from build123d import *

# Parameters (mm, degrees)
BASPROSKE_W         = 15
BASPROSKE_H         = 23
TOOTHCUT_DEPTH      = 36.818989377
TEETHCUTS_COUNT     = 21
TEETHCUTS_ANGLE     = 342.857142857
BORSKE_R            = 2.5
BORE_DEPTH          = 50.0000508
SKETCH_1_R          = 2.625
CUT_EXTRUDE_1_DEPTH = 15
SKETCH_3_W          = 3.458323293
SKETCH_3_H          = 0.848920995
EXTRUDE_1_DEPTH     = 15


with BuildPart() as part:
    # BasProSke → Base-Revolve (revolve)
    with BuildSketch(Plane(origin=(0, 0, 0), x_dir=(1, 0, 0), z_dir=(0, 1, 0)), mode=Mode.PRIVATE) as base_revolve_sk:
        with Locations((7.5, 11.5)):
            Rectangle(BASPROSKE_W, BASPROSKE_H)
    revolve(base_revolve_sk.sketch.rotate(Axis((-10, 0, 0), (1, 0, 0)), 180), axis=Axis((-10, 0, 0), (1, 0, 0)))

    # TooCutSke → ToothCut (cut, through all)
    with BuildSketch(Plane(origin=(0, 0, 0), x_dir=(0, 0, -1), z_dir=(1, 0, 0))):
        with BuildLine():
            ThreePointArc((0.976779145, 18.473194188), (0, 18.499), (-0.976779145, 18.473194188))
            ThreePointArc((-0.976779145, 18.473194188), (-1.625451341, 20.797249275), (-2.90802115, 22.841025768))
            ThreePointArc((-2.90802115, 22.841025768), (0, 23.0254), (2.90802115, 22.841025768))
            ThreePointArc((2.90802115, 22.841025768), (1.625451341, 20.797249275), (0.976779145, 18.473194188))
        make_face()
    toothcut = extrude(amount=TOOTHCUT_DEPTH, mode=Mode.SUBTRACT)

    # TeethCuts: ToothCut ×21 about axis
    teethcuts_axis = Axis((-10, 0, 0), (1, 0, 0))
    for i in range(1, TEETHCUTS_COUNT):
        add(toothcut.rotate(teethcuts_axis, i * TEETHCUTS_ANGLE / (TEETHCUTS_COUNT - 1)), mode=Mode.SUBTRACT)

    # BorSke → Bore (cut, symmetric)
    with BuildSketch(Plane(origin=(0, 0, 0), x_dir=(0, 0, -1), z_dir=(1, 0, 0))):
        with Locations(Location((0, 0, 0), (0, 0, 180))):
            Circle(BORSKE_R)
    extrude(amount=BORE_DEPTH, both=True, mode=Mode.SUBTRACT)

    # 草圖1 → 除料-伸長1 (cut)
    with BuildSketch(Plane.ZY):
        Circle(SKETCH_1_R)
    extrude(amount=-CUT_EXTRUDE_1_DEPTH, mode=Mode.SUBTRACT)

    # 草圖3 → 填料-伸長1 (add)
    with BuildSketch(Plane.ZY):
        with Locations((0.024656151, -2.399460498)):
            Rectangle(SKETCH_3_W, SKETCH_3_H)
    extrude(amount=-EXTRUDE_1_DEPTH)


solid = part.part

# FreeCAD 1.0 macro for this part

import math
import FreeCAD as App
import Part
import Sketcher

V = App.Vector
Q = App.Units.Quantity

doc = App.newDocument("Part")
body = doc.addObject("PartDesign::Body", "Body")

# Sketch on XZ plane
sketch1 = doc.addObject("Sketcher::SketchObject", "Sketch")
body.addObject(sketch1)
sketch1.AttachmentSupport = (doc.XZ_Plane, [""])
sketch1.MapMode = "FlatFace"
sketch1.addGeometry(Part.LineSegment(V(0, -23, 0), V(0, 0, 0)), False)
sketch1.addGeometry(Part.LineSegment(V(0, 0, 0), V(15, 0, 0)), False)
sketch1.addGeometry(Part.LineSegment(V(15, 0, 0), V(15, -23, 0)), False)
sketch1.addGeometry(Part.LineSegment(V(15, -23, 0), V(0, -23, 0)), False)
sketch1.addConstraint(Sketcher.Constraint("Coincident", 0, 2, 1, 1))
sketch1.addConstraint(Sketcher.Constraint("Coincident", 1, 2, 2, 1))
sketch1.addConstraint(Sketcher.Constraint("Coincident", 2, 2, 3, 1))
sketch1.addConstraint(Sketcher.Constraint("Coincident", 3, 2, 0, 1))
sketch1.addConstraint(Sketcher.Constraint("Vertical", 0))
sketch1.addConstraint(Sketcher.Constraint("Horizontal", 1))
sketch1.addConstraint(Sketcher.Constraint("Vertical", 2))
sketch1.addConstraint(Sketcher.Constraint("Horizontal", 3))
sketch1.addConstraint(Sketcher.Constraint("Coincident", 0, 2, -1, 1))
sketch1.addConstraint(Sketcher.Constraint("DistanceX", 1, 1, 1, 2, Q("15 mm")))
sketch1.addConstraint(Sketcher.Constraint("DistanceY", 0, 1, 0, 2, Q("23 mm")))
revolution = doc.addObject("PartDesign::Revolution", "Revolution")
body.addObject(revolution)
revolution.Profile = sketch1
revolution.ReferenceAxis = (sketch1, ["H_Axis"])
revolution.Angle = 360

# Sketch on YZ plane
sketch2 = doc.addObject("Sketcher::SketchObject", "Sketch001")
body.addObject(sketch2)
sketch2.AttachmentSupport = (doc.YZ_Plane, [""])
sketch2.MapMode = "FlatFace"
sketch2.addGeometry(Part.ArcOfCircle(Part.Circle(V(0, 0, 0), V(0, 0, 1), 18.5), math.radians(-3.03), math.radians(3.03)), False)
sketch2.addGeometry(Part.ArcOfCircle(Part.Circle(V(17.4, -9.3, 0), V(0, 0, 1), 8.4), math.radians(50), math.radians(83)), False)
sketch2.addGeometry(Part.ArcOfCircle(Part.Circle(V(0, 0, 0), V(0, 0, 1), 23), math.radians(-7.26), math.radians(7.26)), False)
sketch2.addGeometry(Part.ArcOfCircle(Part.Circle(V(17.4, 9.3, 0), V(0, 0, 1), 8.4), math.radians(-83), math.radians(-50)), False)
sketch2.addConstraint(Sketcher.Constraint("Coincident", 0, 1, 1, 2))
sketch2.addConstraint(Sketcher.Constraint("Coincident", 1, 1, 2, 1))
sketch2.addConstraint(Sketcher.Constraint("Coincident", 2, 2, 3, 2))
sketch2.addConstraint(Sketcher.Constraint("Coincident", 3, 1, 0, 2))
sketch2.addConstraint(Sketcher.Constraint("Coincident", 0, 3, -1, 1))
sketch2.addConstraint(Sketcher.Constraint("Coincident", 2, 3, -1, 1))
sketch2.addConstraint(Sketcher.Constraint("Equal", 1, 3))
sketch2.addConstraint(Sketcher.Constraint("Symmetric", 1, 3, 3, 3, -1))
sketch2.addConstraint(Sketcher.Constraint("Radius", 1, Q("8.4 mm")))
sketch2.addConstraint(Sketcher.Constraint("Radius", 0, Q("18.499 mm")))
sketch2.addConstraint(Sketcher.Constraint("Radius", 2, Q("23.0254 mm")))
sketch2.addConstraint(Sketcher.Constraint("DistanceY", 0, 1, 2, 2, Q("3.8848 mm")))
sketch2.addConstraint(Sketcher.Constraint("DistanceY", 0, 1, -1, 1, Q("0.976779 mm")))
pocket1 = doc.addObject("PartDesign::Pocket", "Pocket")
body.addObject(pocket1)
pocket1.Profile = sketch2
pocket1.Type = "ThroughAll"
pocket1.Reversed = True
doc.recompute()

polarpattern = doc.addObject("PartDesign::PolarPattern", "PolarPattern")
body.addObject(polarpattern)
polarpattern.Originals = [pocket1]
polarpattern.Axis = (doc.X_Axis, [""])
polarpattern.Angle = 360
polarpattern.Occurrences = 21
body.Tip = polarpattern

# Sketch on YZ plane
sketch3 = doc.addObject("Sketcher::SketchObject", "Sketch002")
body.addObject(sketch3)
sketch3.AttachmentSupport = (doc.YZ_Plane, [""])
sketch3.MapMode = "FlatFace"
sketch3.addGeometry(Part.Circle(V(0, 0, 0), V(0, 0, 1), 2.5), False)
sketch3.addConstraint(Sketcher.Constraint("Coincident", 0, 3, -1, 1))
sketch3.addConstraint(Sketcher.Constraint("Diameter", 0, Q("5 mm")))
pocket2 = doc.addObject("PartDesign::Pocket", "Pocket001")
body.addObject(pocket2)
pocket2.Profile = sketch3
pocket2.Length = 100.000102
pocket2.Midplane = True

# Sketch on YZ plane
sketch4 = doc.addObject("Sketcher::SketchObject", "Sketch003")
body.addObject(sketch4)
sketch4.AttachmentSupport = (doc.YZ_Plane, [""])
sketch4.MapMode = "FlatFace"
sketch4.addGeometry(Part.Circle(V(0, 0, 0), V(0, 0, 1), 2.6), False)
sketch4.addConstraint(Sketcher.Constraint("Coincident", 0, 3, -1, 1))
sketch4.addConstraint(Sketcher.Constraint("Diameter", 0, Q("5.25 mm")))
pocket3 = doc.addObject("PartDesign::Pocket", "Pocket002")
body.addObject(pocket3)
pocket3.Profile = sketch4
pocket3.Length = 15
pocket3.Reversed = True

# Sketch on YZ plane
sketch5 = doc.addObject("Sketcher::SketchObject", "Sketch004")
body.addObject(sketch5)
sketch5.AttachmentSupport = (doc.YZ_Plane, [""])
sketch5.MapMode = "FlatFace"
sketch5.addGeometry(Part.LineSegment(V(-2, -1.7, 0), V(-2.8, -1.7, 0)), False)
sketch5.addGeometry(Part.LineSegment(V(-2.8, -1.7, 0), V(-2.8, 1.8, 0)), False)
sketch5.addGeometry(Part.LineSegment(V(-2.8, 1.8, 0), V(-2, 1.8, 0)), False)
sketch5.addGeometry(Part.LineSegment(V(-2, 1.8, 0), V(-2, -1.7, 0)), False)
sketch5.addConstraint(Sketcher.Constraint("Coincident", 0, 2, 1, 1))
sketch5.addConstraint(Sketcher.Constraint("Coincident", 1, 2, 2, 1))
sketch5.addConstraint(Sketcher.Constraint("Coincident", 2, 2, 3, 1))
sketch5.addConstraint(Sketcher.Constraint("Coincident", 3, 2, 0, 1))
sketch5.addConstraint(Sketcher.Constraint("Horizontal", 0))
sketch5.addConstraint(Sketcher.Constraint("Vertical", 1))
sketch5.addConstraint(Sketcher.Constraint("Horizontal", 2))
sketch5.addConstraint(Sketcher.Constraint("Vertical", 3))
sketch5.addConstraint(Sketcher.Constraint("DistanceX", 2, 2, -1, 1, Q("1.975 mm")))
sketch5.addConstraint(Sketcher.Constraint("DistanceX", 0, 2, 0, 1, Q("0.848921 mm")))
sketch5.addConstraint(Sketcher.Constraint("DistanceY", 1, 1, 1, 2, Q("3.458323 mm")))
sketch5.addConstraint(Sketcher.Constraint("DistanceY", 0, 2, -1, 1, Q("1.704505 mm")))
pad1 = doc.addObject("PartDesign::Pad", "Pad")
body.addObject(pad1)
pad1.Profile = sketch5
pad1.Length = 15

doc.recompute()
